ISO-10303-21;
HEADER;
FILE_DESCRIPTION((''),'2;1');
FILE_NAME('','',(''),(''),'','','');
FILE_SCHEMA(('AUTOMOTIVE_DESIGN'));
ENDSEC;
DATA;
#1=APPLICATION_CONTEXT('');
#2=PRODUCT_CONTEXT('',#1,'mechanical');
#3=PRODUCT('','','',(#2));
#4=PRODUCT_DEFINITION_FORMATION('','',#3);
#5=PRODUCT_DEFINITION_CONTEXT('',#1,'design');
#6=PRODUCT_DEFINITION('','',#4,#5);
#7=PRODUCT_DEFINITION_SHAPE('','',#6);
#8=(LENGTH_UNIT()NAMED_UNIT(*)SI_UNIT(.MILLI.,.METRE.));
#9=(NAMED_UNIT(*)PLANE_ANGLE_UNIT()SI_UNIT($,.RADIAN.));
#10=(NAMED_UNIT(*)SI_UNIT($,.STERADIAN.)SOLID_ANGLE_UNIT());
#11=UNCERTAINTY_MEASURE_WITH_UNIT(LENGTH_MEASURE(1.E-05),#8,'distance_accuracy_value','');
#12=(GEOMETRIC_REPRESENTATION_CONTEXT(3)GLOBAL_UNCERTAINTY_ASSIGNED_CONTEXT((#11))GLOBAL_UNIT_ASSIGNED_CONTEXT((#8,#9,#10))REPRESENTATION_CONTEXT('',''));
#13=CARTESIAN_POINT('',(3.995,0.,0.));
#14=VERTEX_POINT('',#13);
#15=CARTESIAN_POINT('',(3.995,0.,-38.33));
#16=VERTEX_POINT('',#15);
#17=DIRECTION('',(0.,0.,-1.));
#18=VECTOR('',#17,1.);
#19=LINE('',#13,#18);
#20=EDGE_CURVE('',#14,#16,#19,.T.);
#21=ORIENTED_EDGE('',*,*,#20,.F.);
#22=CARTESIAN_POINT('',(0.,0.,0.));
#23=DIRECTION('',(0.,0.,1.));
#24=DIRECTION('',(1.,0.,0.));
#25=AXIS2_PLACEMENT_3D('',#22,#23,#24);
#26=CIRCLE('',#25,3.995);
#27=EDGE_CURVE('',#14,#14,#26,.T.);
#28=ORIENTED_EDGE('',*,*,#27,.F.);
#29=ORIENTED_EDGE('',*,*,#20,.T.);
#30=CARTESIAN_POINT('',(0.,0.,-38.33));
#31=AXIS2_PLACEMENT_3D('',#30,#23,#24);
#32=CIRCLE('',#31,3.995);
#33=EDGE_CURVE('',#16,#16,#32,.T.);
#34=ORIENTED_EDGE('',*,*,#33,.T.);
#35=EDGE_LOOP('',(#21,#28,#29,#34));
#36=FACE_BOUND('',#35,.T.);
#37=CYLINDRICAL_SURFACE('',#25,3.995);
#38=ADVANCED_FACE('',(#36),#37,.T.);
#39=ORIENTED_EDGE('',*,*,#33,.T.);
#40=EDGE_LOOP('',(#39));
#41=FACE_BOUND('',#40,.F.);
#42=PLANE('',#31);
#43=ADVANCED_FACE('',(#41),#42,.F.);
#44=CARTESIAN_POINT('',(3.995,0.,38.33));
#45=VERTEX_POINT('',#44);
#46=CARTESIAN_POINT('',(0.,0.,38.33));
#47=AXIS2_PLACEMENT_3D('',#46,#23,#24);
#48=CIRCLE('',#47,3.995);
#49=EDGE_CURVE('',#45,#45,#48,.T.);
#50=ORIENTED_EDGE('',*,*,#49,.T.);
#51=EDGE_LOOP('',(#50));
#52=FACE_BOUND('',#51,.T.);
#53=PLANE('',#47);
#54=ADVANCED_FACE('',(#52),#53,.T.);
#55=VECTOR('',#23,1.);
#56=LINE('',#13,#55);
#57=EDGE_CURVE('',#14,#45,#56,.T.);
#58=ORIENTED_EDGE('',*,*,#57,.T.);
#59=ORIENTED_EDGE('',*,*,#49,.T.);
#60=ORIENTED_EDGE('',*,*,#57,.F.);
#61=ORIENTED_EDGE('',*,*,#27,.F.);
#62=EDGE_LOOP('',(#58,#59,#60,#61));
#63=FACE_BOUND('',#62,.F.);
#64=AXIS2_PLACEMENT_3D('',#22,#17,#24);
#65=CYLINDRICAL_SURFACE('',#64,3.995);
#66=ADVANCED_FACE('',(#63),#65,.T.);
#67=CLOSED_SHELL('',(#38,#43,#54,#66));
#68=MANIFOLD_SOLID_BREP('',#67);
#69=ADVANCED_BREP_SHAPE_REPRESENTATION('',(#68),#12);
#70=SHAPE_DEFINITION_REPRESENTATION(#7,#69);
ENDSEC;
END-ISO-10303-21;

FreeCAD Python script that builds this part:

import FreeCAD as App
import Part
import Sketcher
from FreeCAD import Vector

doc = App.newDocument("Part")
body = doc.addObject("PartDesign::Body", "Body")

# Sketch on XY plane
sketch1 = body.newObject("Sketcher::SketchObject", "Sketch")
sketch1.AttachmentSupport = (doc.getObject("XY_Plane"), [""])
sketch1.MapMode = "FlatFace"
sketch1.addGeometry(Part.Circle(Vector(0, 0, 0), Vector(0, 0, 1), 3.995), False)
sketch1.addConstraint(Sketcher.Constraint("Coincident", 0, 3, -1, 1))
sketch1.addConstraint(Sketcher.Constraint("Diameter", 0, 7.99))
pad1 = body.newObject("PartDesign::Pad", "Pad")
pad1.Profile = sketch1
pad1.Length = 76.66
pad1.Midplane = True

doc.recompute()
